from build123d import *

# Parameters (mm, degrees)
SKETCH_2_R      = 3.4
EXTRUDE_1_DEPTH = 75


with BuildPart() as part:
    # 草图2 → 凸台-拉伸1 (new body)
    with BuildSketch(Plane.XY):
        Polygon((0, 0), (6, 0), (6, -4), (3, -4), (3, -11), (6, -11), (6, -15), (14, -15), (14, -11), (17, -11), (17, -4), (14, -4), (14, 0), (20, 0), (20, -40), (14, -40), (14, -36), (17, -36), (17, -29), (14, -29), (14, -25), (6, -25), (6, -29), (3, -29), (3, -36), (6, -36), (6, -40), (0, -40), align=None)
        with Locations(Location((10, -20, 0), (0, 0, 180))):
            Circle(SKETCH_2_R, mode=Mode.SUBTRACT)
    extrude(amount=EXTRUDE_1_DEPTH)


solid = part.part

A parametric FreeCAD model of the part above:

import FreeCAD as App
import Part
import Sketcher
Q = App.Units.Quantity

doc = App.newDocument("Part")
body = doc.addObject("PartDesign::Body", "Body")

sketch1 = doc.addObject("Sketcher::SketchObject", "Sketch")
body.addObject(sketch1)
sketch1.AttachmentSupport = (doc.XY_Plane, [""])
sketch1.MapMode = "FlatFace"
sketch1.addGeometry(Part.LineSegment(App.Vector(6, 0, 0), App.Vector(0, 0, 0)), False)
sketch1.addGeometry(Part.LineSegment(App.Vector(0, 0, 0), App.Vector(0, -40, 0)), False)
sketch1.addGeometry(Part.LineSegment(App.Vector(0, -40, 0), App.Vector(6, -40, 0)), False)
sketch1.addGeometry(Part.LineSegment(App.Vector(6, -40, 0), App.Vector(6, -36, 0)), False)
sketch1.addGeometry(Part.LineSegment(App.Vector(6, -36, 0), App.Vector(3, -36, 0)), False)
sketch1.addGeometry(Part.LineSegment(App.Vector(3, -36, 0), App.Vector(3, -29, 0)), False)
sketch1.addGeometry(Part.LineSegment(App.Vector(3, -29, 0), App.Vector(6, -29, 0)), False)
sketch1.addGeometry(Part.LineSegment(App.Vector(6, -29, 0), App.Vector(6, -25, 0)), False)
sketch1.addGeometry(Part.LineSegment(App.Vector(6, -25, 0), App.Vector(14, -25, 0)), False)
sketch1.addGeometry(Part.LineSegment(App.Vector(14, -25, 0), App.Vector(14, -29, 0)), False)
sketch1.addGeometry(Part.LineSegment(App.Vector(14, -29, 0), App.Vector(17, -29, 0)), False)
sketch1.addGeometry(Part.LineSegment(App.Vector(17, -29, 0), App.Vector(17, -36, 0)), False)
sketch1.addGeometry(Part.LineSegment(App.Vector(17, -36, 0), App.Vector(14, -36, 0)), False)
sketch1.addGeometry(Part.LineSegment(App.Vector(14, -36, 0), App.Vector(14, -40, 0)), False)
sketch1.addGeometry(Part.LineSegment(App.Vector(14, -40, 0), App.Vector(20, -40, 0)), False)
sketch1.addGeometry(Part.LineSegment(App.Vector(20, -40, 0), App.Vector(20, 0, 0)), False)
sketch1.addGeometry(Part.LineSegment(App.Vector(20, 0, 0), App.Vector(14, 0, 0)), False)
sketch1.addGeometry(Part.LineSegment(App.Vector(14, 0, 0), App.Vector(14, -4, 0)), False)
sketch1.addGeometry(Part.LineSegment(App.Vector(14, -4, 0), App.Vector(17, -4, 0)), False)
sketch1.addGeometry(Part.LineSegment(App.Vector(17, -4, 0), App.Vector(17, -11, 0)), False)
sketch1.addGeometry(Part.LineSegment(App.Vector(17, -11, 0), App.Vector(14, -11, 0)), False)
sketch1.addGeometry(Part.LineSegment(App.Vector(14, -11, 0), App.Vector(14, -15, 0)), False)
sketch1.addGeometry(Part.LineSegment(App.Vector(14, -15, 0), App.Vector(6, -15, 0)), False)
sketch1.addGeometry(Part.LineSegment(App.Vector(6, -15, 0), App.Vector(6, -11, 0)), False)
sketch1.addGeometry(Part.LineSegment(App.Vector(6, -11, 0), App.Vector(3, -11, 0)), False)
sketch1.addGeometry(Part.LineSegment(App.Vector(3, -11, 0), App.Vector(3, -4, 0)), False)
sketch1.addGeometry(Part.LineSegment(App.Vector(3, -4, 0), App.Vector(6, -4, 0)), False)
sketch1.addGeometry(Part.LineSegment(App.Vector(6, -4, 0), App.Vector(6, 0, 0)), False)
sketch1.addGeometry(Part.Circle(App.Vector(10, -20, 0), App.Vector(0, 0, 1), 3.4), False)
sketch1.addConstraint(Sketcher.Constraint("Coincident", 0, 2, 1, 1))
sketch1.addConstraint(Sketcher.Constraint("Coincident", 1, 2, 2, 1))
sketch1.addConstraint(Sketcher.Constraint("Coincident", 2, 2, 3, 1))
sketch1.addConstraint(Sketcher.Constraint("Coincident", 3, 2, 4, 1))
sketch1.addConstraint(Sketcher.Constraint("Coincident", 4, 2, 5, 1))
sketch1.addConstraint(Sketcher.Constraint("Coincident", 5, 2, 6, 1))
sketch1.addConstraint(Sketcher.Constraint("Coincident", 6, 2, 7, 1))
sketch1.addConstraint(Sketcher.Constraint("Coincident", 7, 2, 8, 1))
sketch1.addConstraint(Sketcher.Constraint("Coincident", 8, 2, 9, 1))
sketch1.addConstraint(Sketcher.Constraint("Coincident", 9, 2, 10, 1))
sketch1.addConstraint(Sketcher.Constraint("Coincident", 10, 2, 11, 1))
sketch1.addConstraint(Sketcher.Constraint("Coincident", 11, 2, 12, 1))
sketch1.addConstraint(Sketcher.Constraint("Coincident", 12, 2, 13, 1))
sketch1.addConstraint(Sketcher.Constraint("Coincident", 13, 2, 14, 1))
sketch1.addConstraint(Sketcher.Constraint("Coincident", 14, 2, 15, 1))
sketch1.addConstraint(Sketcher.Constraint("Coincident", 15, 2, 16, 1))
sketch1.addConstraint(Sketcher.Constraint("Coincident", 16, 2, 17, 1))
sketch1.addConstraint(Sketcher.Constraint("Coincident", 17, 2, 18, 1))
sketch1.addConstraint(Sketcher.Constraint("Coincident", 18, 2, 19, 1))
sketch1.addConstraint(Sketcher.Constraint("Coincident", 19, 2, 20, 1))
sketch1.addConstraint(Sketcher.Constraint("Coincident", 20, 2, 21, 1))
sketch1.addConstraint(Sketcher.Constraint("Coincident", 21, 2, 22, 1))
sketch1.addConstraint(Sketcher.Constraint("Coincident", 22, 2, 23, 1))
sketch1.addConstraint(Sketcher.Constraint("Coincident", 23, 2, 24, 1))
sketch1.addConstraint(Sketcher.Constraint("Coincident", 24, 2, 25, 1))
sketch1.addConstraint(Sketcher.Constraint("Coincident", 25, 2, 26, 1))
sketch1.addConstraint(Sketcher.Constraint("Coincident", 26, 2, 27, 1))
sketch1.addConstraint(Sketcher.Constraint("Coincident", 27, 2, 0, 1))
sketch1.addConstraint(Sketcher.Constraint("Horizontal", 0))
sketch1.addConstraint(Sketcher.Constraint("Vertical", 1))
sketch1.addConstraint(Sketcher.Constraint("Horizontal", 2))
sketch1.addConstraint(Sketcher.Constraint("Vertical", 3))
sketch1.addConstraint(Sketcher.Constraint("Horizontal", 4))
sketch1.addConstraint(Sketcher.Constraint("Vertical", 5))
sketch1.addConstraint(Sketcher.Constraint("Horizontal", 6))
sketch1.addConstraint(Sketcher.Constraint("Vertical", 7))
sketch1.addConstraint(Sketcher.Constraint("Horizontal", 8))
sketch1.addConstraint(Sketcher.Constraint("Vertical", 9))
sketch1.addConstraint(Sketcher.Constraint("Horizontal", 10))
sketch1.addConstraint(Sketcher.Constraint("Vertical", 11))
sketch1.addConstraint(Sketcher.Constraint("Horizontal", 12))
sketch1.addConstraint(Sketcher.Constraint("Vertical", 13))
sketch1.addConstraint(Sketcher.Constraint("Horizontal", 14))
sketch1.addConstraint(Sketcher.Constraint("Vertical", 15))
sketch1.addConstraint(Sketcher.Constraint("Horizontal", 16))
sketch1.addConstraint(Sketcher.Constraint("Vertical", 17))
sketch1.addConstraint(Sketcher.Constraint("Horizontal", 18))
sketch1.addConstraint(Sketcher.Constraint("Vertical", 19))
sketch1.addConstraint(Sketcher.Constraint("Horizontal", 20))
sketch1.addConstraint(Sketcher.Constraint("Vertical", 21))
sketch1.addConstraint(Sketcher.Constraint("Horizontal", 22))
sketch1.addConstraint(Sketcher.Constraint("Vertical", 23))
sketch1.addConstraint(Sketcher.Constraint("Horizontal", 24))
sketch1.addConstraint(Sketcher.Constraint("Vertical", 25))
sketch1.addConstraint(Sketcher.Constraint("Horizontal", 26))
sketch1.addConstraint(Sketcher.Constraint("Vertical", 27))
sketch1.addConstraint(Sketcher.Constraint("Coincident", 0, 2, -1, 1))
sketch1.addConstraint(Sketcher.Constraint("PointOnObject", 15, 2, -1))
sketch1.addConstraint(Sketcher.Constraint("Horizontal", 6, 2, 9, 2))
sketch1.addConstraint(Sketcher.Constraint("Horizontal", 4, 2, 11, 2))
sketch1.addConstraint(Sketcher.Constraint("Horizontal", 2, 2, 13, 2))
sketch1.addConstraint(Sketcher.Constraint("Horizontal", 20, 2, 23, 2))
sketch1.addConstraint(Sketcher.Constraint("Horizontal", 18, 2, 25, 2))
sketch1.addConstraint(Sketcher.Constraint("Vertical", 3, 2, 6, 2))
sketch1.addConstraint(Sketcher.Constraint("Vertical", 9, 2, 12, 2))
sketch1.addConstraint(Sketcher.Constraint("Vertical", 13, 2, 16, 2))
sketch1.addConstraint(Sketcher.Constraint("Vertical", 11, 2, 18, 2))
sketch1.addConstraint(Sketcher.Constraint("Vertical", 17, 2, 20, 2))
sketch1.addConstraint(Sketcher.Constraint("Vertical", 7, 2, 22, 2))
sketch1.addConstraint(Sketcher.Constraint("Vertical", 5, 2, 24, 2))
sketch1.addConstraint(Sketcher.Constraint("Vertical", 23, 2, 26, 2))
sketch1.addConstraint(Sketcher.Constraint("Equal", 6, 10))
sketch1.addConstraint(Sketcher.Constraint("Equal", 2, 14))
sketch1.addConstraint(Sketcher.Constraint("Equal", 3, 7))
sketch1.addConstraint(Sketcher.Constraint("Equal", 13, 17))
sketch1.addConstraint(Sketcher.Constraint("Equal", 11, 19))
sketch1.addConstraint(Sketcher.Constraint("Equal", 17, 21))
sketch1.addConstraint(Sketcher.Constraint("Diameter", 28, Q("6.8 mm")))
sketch1.addConstraint(Sketcher.Constraint("DistanceX", 0, 2, 0, 1, Q("6 mm")))
sketch1.addConstraint(Sketcher.Constraint("DistanceX", 4, 2, 4, 1, Q("3 mm")))
sketch1.addConstraint(Sketcher.Constraint("DistanceX", 8, 1, 8, 2, Q("8 mm")))
sketch1.addConstraint(Sketcher.Constraint("DistanceY", 1, 2, 1, 1, Q("40 mm")))
sketch1.addConstraint(Sketcher.Constraint("DistanceY", 3, 1, 3, 2, Q("4 mm")))
sketch1.addConstraint(Sketcher.Constraint("DistanceY", 5, 1, 5, 2, Q("7 mm")))
sketch1.addConstraint(Sketcher.Constraint("DistanceX", -1, 1, 28, 3, Q("10 mm")))
sketch1.addConstraint(Sketcher.Constraint("DistanceY", 28, 3, -1, 1, Q("20 mm")))
pad1 = doc.addObject("PartDesign::Pad", "Pad")
body.addObject(pad1)
pad1.Profile = sketch1
pad1.Length = 75

doc.recompute()
